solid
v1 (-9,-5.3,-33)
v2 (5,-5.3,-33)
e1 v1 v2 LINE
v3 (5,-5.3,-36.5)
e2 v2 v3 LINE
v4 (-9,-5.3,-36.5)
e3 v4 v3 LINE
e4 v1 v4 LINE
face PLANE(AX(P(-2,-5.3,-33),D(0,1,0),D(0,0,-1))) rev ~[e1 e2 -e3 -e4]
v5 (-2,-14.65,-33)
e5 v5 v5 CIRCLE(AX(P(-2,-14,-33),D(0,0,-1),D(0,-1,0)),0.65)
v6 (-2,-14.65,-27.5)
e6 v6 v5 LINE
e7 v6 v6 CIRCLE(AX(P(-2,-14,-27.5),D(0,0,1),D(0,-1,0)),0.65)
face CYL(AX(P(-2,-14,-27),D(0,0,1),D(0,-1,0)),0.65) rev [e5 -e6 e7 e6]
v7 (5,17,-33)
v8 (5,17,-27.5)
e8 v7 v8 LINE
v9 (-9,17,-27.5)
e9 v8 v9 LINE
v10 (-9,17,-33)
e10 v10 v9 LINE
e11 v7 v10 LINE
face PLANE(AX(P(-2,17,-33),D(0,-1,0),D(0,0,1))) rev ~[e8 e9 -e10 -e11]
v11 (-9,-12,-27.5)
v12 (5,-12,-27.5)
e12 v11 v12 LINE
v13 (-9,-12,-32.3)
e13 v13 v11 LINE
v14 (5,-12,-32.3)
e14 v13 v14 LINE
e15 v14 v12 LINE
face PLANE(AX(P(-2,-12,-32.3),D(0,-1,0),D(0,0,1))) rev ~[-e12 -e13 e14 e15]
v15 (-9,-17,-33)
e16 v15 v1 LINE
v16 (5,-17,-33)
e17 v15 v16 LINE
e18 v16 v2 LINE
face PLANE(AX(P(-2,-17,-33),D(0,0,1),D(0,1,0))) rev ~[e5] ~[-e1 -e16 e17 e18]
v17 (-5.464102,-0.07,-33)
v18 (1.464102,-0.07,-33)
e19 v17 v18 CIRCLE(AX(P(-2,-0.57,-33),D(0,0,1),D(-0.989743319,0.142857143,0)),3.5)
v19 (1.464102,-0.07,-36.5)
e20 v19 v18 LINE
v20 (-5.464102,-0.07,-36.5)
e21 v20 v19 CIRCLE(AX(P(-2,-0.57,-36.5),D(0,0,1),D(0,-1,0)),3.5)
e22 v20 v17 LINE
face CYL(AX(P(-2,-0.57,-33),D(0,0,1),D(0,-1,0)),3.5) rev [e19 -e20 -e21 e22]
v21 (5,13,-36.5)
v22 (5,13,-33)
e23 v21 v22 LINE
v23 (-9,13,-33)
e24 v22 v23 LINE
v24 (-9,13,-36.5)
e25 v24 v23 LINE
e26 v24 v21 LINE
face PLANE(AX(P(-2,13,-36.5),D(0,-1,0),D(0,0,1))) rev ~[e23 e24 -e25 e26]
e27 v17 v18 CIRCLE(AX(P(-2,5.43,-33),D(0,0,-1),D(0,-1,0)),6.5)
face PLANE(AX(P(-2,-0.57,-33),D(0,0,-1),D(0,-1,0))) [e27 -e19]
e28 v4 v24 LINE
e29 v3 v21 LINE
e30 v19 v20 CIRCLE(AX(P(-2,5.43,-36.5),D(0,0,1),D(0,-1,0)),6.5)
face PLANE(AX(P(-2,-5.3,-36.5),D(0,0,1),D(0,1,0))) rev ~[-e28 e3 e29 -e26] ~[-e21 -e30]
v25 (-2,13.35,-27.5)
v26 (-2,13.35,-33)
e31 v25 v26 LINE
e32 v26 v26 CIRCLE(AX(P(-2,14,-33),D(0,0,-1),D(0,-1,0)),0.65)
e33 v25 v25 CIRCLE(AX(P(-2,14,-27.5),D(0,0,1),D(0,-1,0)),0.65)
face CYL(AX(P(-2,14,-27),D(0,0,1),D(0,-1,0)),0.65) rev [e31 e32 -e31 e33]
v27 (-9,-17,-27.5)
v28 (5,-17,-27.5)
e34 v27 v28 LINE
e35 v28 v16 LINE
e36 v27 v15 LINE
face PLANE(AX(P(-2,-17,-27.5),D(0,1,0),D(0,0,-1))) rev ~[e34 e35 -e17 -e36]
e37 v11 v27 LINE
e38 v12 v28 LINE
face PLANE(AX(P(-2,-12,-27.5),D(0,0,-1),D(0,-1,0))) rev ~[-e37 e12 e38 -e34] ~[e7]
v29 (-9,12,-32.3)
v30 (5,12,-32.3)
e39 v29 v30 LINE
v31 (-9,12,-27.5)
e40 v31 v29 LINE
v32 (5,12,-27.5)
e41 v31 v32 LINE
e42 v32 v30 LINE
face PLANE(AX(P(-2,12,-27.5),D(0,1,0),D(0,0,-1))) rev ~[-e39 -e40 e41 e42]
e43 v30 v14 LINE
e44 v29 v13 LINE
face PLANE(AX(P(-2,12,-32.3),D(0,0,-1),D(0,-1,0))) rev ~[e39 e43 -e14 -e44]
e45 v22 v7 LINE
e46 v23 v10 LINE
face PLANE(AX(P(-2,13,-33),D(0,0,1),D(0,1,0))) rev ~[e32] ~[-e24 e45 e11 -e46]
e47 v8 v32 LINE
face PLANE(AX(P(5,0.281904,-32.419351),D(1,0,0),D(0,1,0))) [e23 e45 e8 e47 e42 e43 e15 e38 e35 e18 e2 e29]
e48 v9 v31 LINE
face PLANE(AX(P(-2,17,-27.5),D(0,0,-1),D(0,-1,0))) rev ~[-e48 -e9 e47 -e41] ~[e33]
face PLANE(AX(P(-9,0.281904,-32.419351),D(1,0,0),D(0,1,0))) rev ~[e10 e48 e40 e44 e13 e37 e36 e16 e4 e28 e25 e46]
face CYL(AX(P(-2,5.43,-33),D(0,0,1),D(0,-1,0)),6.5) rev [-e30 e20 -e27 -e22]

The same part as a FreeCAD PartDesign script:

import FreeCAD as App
import Part
import Sketcher
Q = App.Units.Quantity

doc = App.newDocument("Part")
params = doc.addObject("Spreadsheet::Sheet", "Params")
for row, (alias, value) in enumerate([
    ("sketch1_diameter", "7 mm"),
    ("pad1_length", "4 mm"),
    ("sketch2_diameter", "1.3 mm"),
    ("pad2_length", "6 mm"),
    ("sketch3_diameter", "13 mm"),
    ("pad3_length", "4 mm"),
    ("sketch4_diameter", "1.3 mm"),
    ("pad4_length", "6 mm"),
    ("sketch5_width", "5 mm"),
    ("sketch5_width2", "4 mm"),
    ("sketch5_width3", "24 mm"),
    ("sketch5_width4", "18.3 mm"),
    ("sketch5_height", "5.5 mm"),
    ("pad5_length", "14 mm"),
], start=1):
    params.set(f"A{row}", alias)
    params.set(f"B{row}", "=" + value)
    params.setAlias(f"B{row}", alias)

body = doc.addObject("PartDesign::Body", "Body")

sketch1 = body.newObject("Sketcher::SketchObject", "Sketch")
sketch1.AttachmentSupport = (doc.getObject("XY_Plane"), [""])
sketch1.MapMode = "FlatFace"
sketch1.addGeometry(Part.Circle(App.Vector(0, 0, 0), App.Vector(0, 0, 1), 3.5), False)
sketch1.addConstraint([
    Sketcher.Constraint("Coincident", 0, 3, -1, 1),
    Sketcher.Constraint("Diameter", 0, Q("7 mm")),
])
sketch1.setExpression("Constraints[1]", "Params.sketch1_diameter")
pad1 = body.newObject("PartDesign::Pad", "Pad")
pad1.Profile = sketch1
pad1.setExpression("Length", "Params.pad1_length")
body2 = doc.addObject("PartDesign::Body", "Body001")
doc.recompute()

body.Placement = App.Placement(App.Vector(0, 0, 0), App.Rotation(App.Vector(1, 0, 0), 90))
boolean = body2.newObject("PartDesign::Boolean", "Boolean")
boolean.Type = "Fuse"
boolean.addObjects([body])
body3 = doc.addObject("PartDesign::Body", "Body002")
doc.recompute()

body2.Placement = App.Placement(App.Vector(0.57, -7, 0), App.Rotation(App.Vector(0, 0, 1), 0))
boolean2 = body3.newObject("PartDesign::Boolean", "Boolean001")
boolean2.Type = "Fuse"
boolean2.addObjects([body2])
body4 = doc.addObject("PartDesign::Body", "Body003")

sketch2 = body4.newObject("Sketcher::SketchObject", "Sketch001")
sketch2.AttachmentSupport = (doc.getObject("XY_Plane003"), [""])
sketch2.MapMode = "FlatFace"
sketch2.addGeometry(Part.Circle(App.Vector(0, 0, 0), App.Vector(0, 0, 1), 0.7), False)
sketch2.addConstraint([
    Sketcher.Constraint("Coincident", 0, 3, -1, 1),
    Sketcher.Constraint("Diameter", 0, Q("1.3 mm")),
])
sketch2.setExpression("Constraints[1]", "Params.sketch2_diameter")
pad2 = body4.newObject("PartDesign::Pad", "Pad001")
pad2.Profile = sketch2
pad2.setExpression("Length", "Params.pad2_length")
body5 = doc.addObject("PartDesign::Body", "Body004")
doc.recompute()

body4.Placement = App.Placement(App.Vector(0, 0, 0), App.Rotation(App.Vector(1, 0, 0), 90))
boolean3 = body5.newObject("PartDesign::Boolean", "Boolean002")
boolean3.Type = "Fuse"
boolean3.addObjects([body4])
body6 = doc.addObject("PartDesign::Body", "Body005")
doc.recompute()

body5.Placement = App.Placement(App.Vector(14, -1, 0), App.Rotation(App.Vector(0, 0, 1), 0))
boolean4 = body6.newObject("PartDesign::Boolean", "Boolean003")
boolean4.Type = "Fuse"
boolean4.addObjects([body5])
body7 = doc.addObject("PartDesign::Body", "Body006")

sketch3 = body7.newObject("Sketcher::SketchObject", "Sketch002")
sketch3.AttachmentSupport = (doc.getObject("XY_Plane006"), [""])
sketch3.MapMode = "FlatFace"
sketch3.addGeometry(Part.Circle(App.Vector(0, 0, 0), App.Vector(0, 0, 1), 6), False)
sketch3.addConstraint([
    Sketcher.Constraint("Coincident", 0, 3, -1, 1),
    Sketcher.Constraint("Diameter", 0, Q("13 mm")),
])
sketch3.setExpression("Constraints[1]", "Params.sketch3_diameter")
pad3 = body7.newObject("PartDesign::Pad", "Pad002")
pad3.Profile = sketch3
pad3.setExpression("Length", "Params.pad3_length")
body8 = doc.addObject("PartDesign::Body", "Body007")
doc.recompute()

body7.Placement = App.Placement(App.Vector(0, 0, 0), App.Rotation(App.Vector(1, 0, 0), 90))
boolean5 = body8.newObject("PartDesign::Boolean", "Boolean004")
boolean5.Type = "Fuse"
boolean5.addObjects([body7])
body9 = doc.addObject("PartDesign::Body", "Body008")
doc.recompute()

body8.Placement = App.Placement(App.Vector(-5.43, -7, 0), App.Rotation(App.Vector(0, 0, 1), 0))
boolean6 = body9.newObject("PartDesign::Boolean", "Boolean005")
boolean6.Type = "Fuse"
boolean6.addObjects([body8])
body10 = doc.addObject("PartDesign::Body", "Body009")

sketch4 = body10.newObject("Sketcher::SketchObject", "Sketch003")
sketch4.AttachmentSupport = (doc.getObject("XY_Plane009"), [""])
sketch4.MapMode = "FlatFace"
sketch4.addGeometry(Part.Circle(App.Vector(0, 0, 0), App.Vector(0, 0, 1), 0.7), False)
sketch4.addConstraint([
    Sketcher.Constraint("Coincident", 0, 3, -1, 1),
    Sketcher.Constraint("Diameter", 0, Q("1.3 mm")),
])
sketch4.setExpression("Constraints[1]", "Params.sketch4_diameter")
pad4 = body10.newObject("PartDesign::Pad", "Pad003")
pad4.Profile = sketch4
pad4.setExpression("Length", "Params.pad4_length")
body11 = doc.addObject("PartDesign::Body", "Body010")
doc.recompute()

body10.Placement = App.Placement(App.Vector(0, 0, 0), App.Rotation(App.Vector(1, 0, 0), 90))
boolean7 = body11.newObject("PartDesign::Boolean", "Boolean006")
boolean7.Type = "Fuse"
boolean7.addObjects([body10])
body12 = doc.addObject("PartDesign::Body", "Body011")
body12.AllowCompound = True
doc.recompute()

body11.Placement = App.Placement(App.Vector(-14, -1, 0), App.Rotation(App.Vector(0, 0, 1), 0))
boolean8 = body12.newObject("PartDesign::Boolean", "Boolean007")
boolean8.Type = "Fuse"
boolean8.addObjects([body11])
doc.recompute()

boolean9 = body12.newObject("PartDesign::Boolean", "Boolean008")
boolean9.Type = "Fuse"
boolean9.addObjects([body3])
doc.recompute()

boolean10 = body12.newObject("PartDesign::Boolean", "Boolean009")
boolean10.Type = "Fuse"
boolean10.addObjects([body6])
doc.recompute()

boolean11 = body12.newObject("PartDesign::Boolean", "Boolean010")
boolean11.Type = "Fuse"
boolean11.addObjects([body9])
body13 = doc.addObject("PartDesign::Body", "Body012")

sketch5 = body13.newObject("Sketcher::SketchObject", "Sketch004")
sketch5.AttachmentSupport = (doc.getObject("XY_Plane012"), [""])
sketch5.MapMode = "FlatFace"
sketch5.addGeometry([
    Part.LineSegment(App.Vector(-12, -1.5, 0), App.Vector(-17, -1.5, 0)),
    Part.LineSegment(App.Vector(-17, -1.5, 0), App.Vector(-17, -7, 0)),
    Part.LineSegment(App.Vector(-17, -7, 0), App.Vector(-13, -7, 0)),
    Part.LineSegment(App.Vector(-13, -7, 0), App.Vector(-13, -10.5, 0)),
    Part.LineSegment(App.Vector(-13, -10.5, 0), App.Vector(5.3, -10.5, 0)),
    Part.LineSegment(App.Vector(5.3, -10.5, 0), App.Vector(5.3, -7, 0)),
    Part.LineSegment(App.Vector(5.3, -7, 0), App.Vector(17, -7, 0)),
    Part.LineSegment(App.Vector(17, -7, 0), App.Vector(17, -1.5, 0)),
    Part.LineSegment(App.Vector(17, -1.5, 0), App.Vector(12, -1.5, 0)),
    Part.LineSegment(App.Vector(12, -1.5, 0), App.Vector(12, -6.3, 0)),
    Part.LineSegment(App.Vector(12, -6.3, 0), App.Vector(-12, -6.3, 0)),
    Part.LineSegment(App.Vector(-12, -6.3, 0), App.Vector(-12, -1.5, 0)),
], False)
sketch5.addConstraint([
    Sketcher.Constraint("Coincident", 0, 2, 1, 1),
    Sketcher.Constraint("Coincident", 1, 2, 2, 1),
    Sketcher.Constraint("Coincident", 2, 2, 3, 1),
    Sketcher.Constraint("Coincident", 3, 2, 4, 1),
    Sketcher.Constraint("Coincident", 4, 2, 5, 1),
    Sketcher.Constraint("Coincident", 5, 2, 6, 1),
    Sketcher.Constraint("Coincident", 6, 2, 7, 1),
    Sketcher.Constraint("Coincident", 7, 2, 8, 1),
    Sketcher.Constraint("Coincident", 8, 2, 9, 1),
    Sketcher.Constraint("Coincident", 9, 2, 10, 1),
    Sketcher.Constraint("Coincident", 10, 2, 11, 1),
    Sketcher.Constraint("Coincident", 11, 2, 0, 1),
    Sketcher.Constraint("Horizontal", 0),
    Sketcher.Constraint("Vertical", 1),
    Sketcher.Constraint("Horizontal", 2),
    Sketcher.Constraint("Vertical", 3),
    Sketcher.Constraint("Horizontal", 4),
    Sketcher.Constraint("Vertical", 5),
    Sketcher.Constraint("Horizontal", 6),
    Sketcher.Constraint("Vertical", 7),
    Sketcher.Constraint("Horizontal", 8),
    Sketcher.Constraint("Vertical", 9),
    Sketcher.Constraint("Horizontal", 10),
    Sketcher.Constraint("Vertical", 11),
    Sketcher.Constraint("Symmetric", 1, 2, 6, 2, -2),
    Sketcher.Constraint("Symmetric", 8, 2, 11, 2, -2),
    Sketcher.Constraint("DistanceX", 0, 2, 0, 1, Q("5 mm")),
    Sketcher.Constraint("DistanceX", 2, 1, 2, 2, Q("4 mm")),
    Sketcher.Constraint("DistanceX", 10, 2, 10, 1, Q("24 mm")),
    Sketcher.Constraint("DistanceX", 4, 1, 4, 2, Q("18.3 mm")),
    Sketcher.Constraint("DistanceY", 1, 2, 1, 1, Q("5.5 mm")),
    Sketcher.Constraint("DistanceY", 3, 2, 3, 1, Q("3.5 mm")),
    Sketcher.Constraint("DistanceY", 9, 2, 9, 1, Q("4.8 mm")),
    Sketcher.Constraint("DistanceY", 1, 2, -1, 1, Q("7 mm")),
])
sketch5.setExpression("Constraints[26]", "Params.sketch5_width")
sketch5.setExpression("Constraints[27]", "Params.sketch5_width2")
sketch5.setExpression("Constraints[28]", "Params.sketch5_width3")
sketch5.setExpression("Constraints[29]", "Params.sketch5_width4")
sketch5.setExpression("Constraints[30]", "Params.sketch5_height")
pad5 = body13.newObject("PartDesign::Pad", "Pad004")
pad5.Profile = sketch5
pad5.setExpression("Length", "Params.pad5_length")
pad5.Midplane = True
doc.recompute()

boolean12 = body13.newObject("PartDesign::Boolean", "Boolean011")
boolean12.Type = "Cut"
boolean12.addObjects([body12])
body14 = doc.addObject("PartDesign::Body", "Body013")
doc.recompute()

body13.Placement = App.Placement(App.Vector(0, 0, 0), App.Rotation(App.Vector(1, 0, 0), 90))
boolean13 = body14.newObject("PartDesign::Boolean", "Boolean012")
boolean13.Type = "Fuse"
boolean13.addObjects([body13])
body15 = doc.addObject("PartDesign::Body", "Body014")
doc.recompute()

body14.Placement = App.Placement(App.Vector(-2, 0, -26), App.Rotation(App.Vector(0, 0, 1), 270))
boolean14 = body15.newObject("PartDesign::Boolean", "Boolean013")
boolean14.Type = "Fuse"
boolean14.addObjects([body14])

doc.recompute()
